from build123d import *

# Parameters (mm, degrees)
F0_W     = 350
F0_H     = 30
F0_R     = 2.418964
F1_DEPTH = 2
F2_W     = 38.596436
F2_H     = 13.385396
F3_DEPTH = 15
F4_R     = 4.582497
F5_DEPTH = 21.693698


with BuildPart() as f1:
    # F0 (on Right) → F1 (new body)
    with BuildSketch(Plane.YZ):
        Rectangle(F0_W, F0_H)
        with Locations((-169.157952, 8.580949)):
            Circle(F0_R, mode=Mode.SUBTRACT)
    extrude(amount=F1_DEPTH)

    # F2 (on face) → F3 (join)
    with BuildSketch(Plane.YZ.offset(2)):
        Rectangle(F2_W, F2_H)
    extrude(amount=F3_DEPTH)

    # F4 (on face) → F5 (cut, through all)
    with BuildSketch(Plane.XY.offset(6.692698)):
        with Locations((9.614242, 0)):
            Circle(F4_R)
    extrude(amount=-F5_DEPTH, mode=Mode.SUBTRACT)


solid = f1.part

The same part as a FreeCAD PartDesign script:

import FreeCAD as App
import Part
import Sketcher
Q = App.Units.Quantity


def add_polygon(sketch, points):
    """Adds a closed chain of lines whose ends are joined by coincident constraints."""
    first, n = sketch.GeometryCount, len(points)
    for a, b in zip(points, points[1:] + points[:1]):
        sketch.addGeometry(Part.LineSegment(App.Vector(*a, 0), App.Vector(*b, 0)), False)
    for i in range(n):
        sketch.addConstraint(Sketcher.Constraint("Coincident", first + i, 2, first + (i + 1) % n, 1))

doc = App.newDocument("Part")
body = doc.addObject("PartDesign::Body", "Body")

sketch1 = body.newObject("Sketcher::SketchObject", "Sketch")
sketch1.AttachmentSupport = (doc.getObject("YZ_Plane"), [""])
sketch1.MapMode = "FlatFace"
add_polygon(sketch1, [(-175, 15), (-175, -15), (175, -15), (175, 15)])
sketch1.addGeometry(Part.Circle(App.Vector(-169.157952, 8.580949, 0), App.Vector(0, 0, 1), 2.418964), False)
sketch1.addConstraint(Sketcher.Constraint("Vertical", 0))
sketch1.addConstraint(Sketcher.Constraint("Horizontal", 1))
sketch1.addConstraint(Sketcher.Constraint("Vertical", 2))
sketch1.addConstraint(Sketcher.Constraint("Horizontal", 3))
sketch1.addConstraint(Sketcher.Constraint("Symmetric", 0, 2, 2, 2, -1, 1))
sketch1.addConstraint(Sketcher.Constraint("DistanceX", 1, 1, 1, 2, Q("350 mm")))
sketch1.addConstraint(Sketcher.Constraint("DistanceY", 0, 2, 0, 1, Q("30 mm")))
sketch1.addConstraint(Sketcher.Constraint("Diameter", 4, Q("4.837928 mm")))
sketch1.addConstraint(Sketcher.Constraint("DistanceX", 4, 3, -1, 1, Q("169.157952 mm")))
sketch1.addConstraint(Sketcher.Constraint("DistanceY", -1, 1, 4, 3, Q("8.580949 mm")))
pad1 = body.newObject("PartDesign::Pad", "Pad")
pad1.Profile = sketch1
pad1.Length = 2

sketch2 = body.newObject("Sketcher::SketchObject", "Sketch001")
sketch2.AttachmentSupport = (doc.getObject("YZ_Plane"), [""])
sketch2.MapMode = "FlatFace"
sketch2.AttachmentOffset = App.Placement(App.Vector(0, 0, 2), App.Rotation())
add_polygon(sketch2, [(-19.298218, 6.692698), (-19.298218, -6.692698), (19.298218, -6.692698), (19.298218, 6.692698)])
sketch2.addConstraint(Sketcher.Constraint("Vertical", 0))
sketch2.addConstraint(Sketcher.Constraint("Horizontal", 1))
sketch2.addConstraint(Sketcher.Constraint("Vertical", 2))
sketch2.addConstraint(Sketcher.Constraint("Horizontal", 3))
sketch2.addConstraint(Sketcher.Constraint("Symmetric", 0, 2, 2, 2, -1, 1))
sketch2.addConstraint(Sketcher.Constraint("DistanceX", 1, 1, 1, 2, Q("38.596436 mm")))
sketch2.addConstraint(Sketcher.Constraint("DistanceY", 0, 2, 0, 1, Q("13.385396 mm")))
pad2 = body.newObject("PartDesign::Pad", "Pad001")
pad2.Profile = sketch2
pad2.Length = 15

sketch3 = body.newObject("Sketcher::SketchObject", "Sketch002")
sketch3.AttachmentSupport = (doc.getObject("XY_Plane"), [""])
sketch3.MapMode = "FlatFace"
sketch3.AttachmentOffset = App.Placement(App.Vector(0, 0, 6.692698), App.Rotation())
sketch3.addGeometry(Part.Circle(App.Vector(9.614242, 0, 0), App.Vector(0, 0, 1), 4.582497), False)
sketch3.addConstraint(Sketcher.Constraint("PointOnObject", 0, 3, -1))
sketch3.addConstraint(Sketcher.Constraint("Diameter", 0, Q("9.164994 mm")))
sketch3.addConstraint(Sketcher.Constraint("DistanceX", -1, 1, 0, 3, Q("9.614242 mm")))
pocket1 = body.newObject("PartDesign::Pocket", "Pocket")
pocket1.Profile = sketch3
pocket1.Type = "ThroughAll"

doc.recompute()
